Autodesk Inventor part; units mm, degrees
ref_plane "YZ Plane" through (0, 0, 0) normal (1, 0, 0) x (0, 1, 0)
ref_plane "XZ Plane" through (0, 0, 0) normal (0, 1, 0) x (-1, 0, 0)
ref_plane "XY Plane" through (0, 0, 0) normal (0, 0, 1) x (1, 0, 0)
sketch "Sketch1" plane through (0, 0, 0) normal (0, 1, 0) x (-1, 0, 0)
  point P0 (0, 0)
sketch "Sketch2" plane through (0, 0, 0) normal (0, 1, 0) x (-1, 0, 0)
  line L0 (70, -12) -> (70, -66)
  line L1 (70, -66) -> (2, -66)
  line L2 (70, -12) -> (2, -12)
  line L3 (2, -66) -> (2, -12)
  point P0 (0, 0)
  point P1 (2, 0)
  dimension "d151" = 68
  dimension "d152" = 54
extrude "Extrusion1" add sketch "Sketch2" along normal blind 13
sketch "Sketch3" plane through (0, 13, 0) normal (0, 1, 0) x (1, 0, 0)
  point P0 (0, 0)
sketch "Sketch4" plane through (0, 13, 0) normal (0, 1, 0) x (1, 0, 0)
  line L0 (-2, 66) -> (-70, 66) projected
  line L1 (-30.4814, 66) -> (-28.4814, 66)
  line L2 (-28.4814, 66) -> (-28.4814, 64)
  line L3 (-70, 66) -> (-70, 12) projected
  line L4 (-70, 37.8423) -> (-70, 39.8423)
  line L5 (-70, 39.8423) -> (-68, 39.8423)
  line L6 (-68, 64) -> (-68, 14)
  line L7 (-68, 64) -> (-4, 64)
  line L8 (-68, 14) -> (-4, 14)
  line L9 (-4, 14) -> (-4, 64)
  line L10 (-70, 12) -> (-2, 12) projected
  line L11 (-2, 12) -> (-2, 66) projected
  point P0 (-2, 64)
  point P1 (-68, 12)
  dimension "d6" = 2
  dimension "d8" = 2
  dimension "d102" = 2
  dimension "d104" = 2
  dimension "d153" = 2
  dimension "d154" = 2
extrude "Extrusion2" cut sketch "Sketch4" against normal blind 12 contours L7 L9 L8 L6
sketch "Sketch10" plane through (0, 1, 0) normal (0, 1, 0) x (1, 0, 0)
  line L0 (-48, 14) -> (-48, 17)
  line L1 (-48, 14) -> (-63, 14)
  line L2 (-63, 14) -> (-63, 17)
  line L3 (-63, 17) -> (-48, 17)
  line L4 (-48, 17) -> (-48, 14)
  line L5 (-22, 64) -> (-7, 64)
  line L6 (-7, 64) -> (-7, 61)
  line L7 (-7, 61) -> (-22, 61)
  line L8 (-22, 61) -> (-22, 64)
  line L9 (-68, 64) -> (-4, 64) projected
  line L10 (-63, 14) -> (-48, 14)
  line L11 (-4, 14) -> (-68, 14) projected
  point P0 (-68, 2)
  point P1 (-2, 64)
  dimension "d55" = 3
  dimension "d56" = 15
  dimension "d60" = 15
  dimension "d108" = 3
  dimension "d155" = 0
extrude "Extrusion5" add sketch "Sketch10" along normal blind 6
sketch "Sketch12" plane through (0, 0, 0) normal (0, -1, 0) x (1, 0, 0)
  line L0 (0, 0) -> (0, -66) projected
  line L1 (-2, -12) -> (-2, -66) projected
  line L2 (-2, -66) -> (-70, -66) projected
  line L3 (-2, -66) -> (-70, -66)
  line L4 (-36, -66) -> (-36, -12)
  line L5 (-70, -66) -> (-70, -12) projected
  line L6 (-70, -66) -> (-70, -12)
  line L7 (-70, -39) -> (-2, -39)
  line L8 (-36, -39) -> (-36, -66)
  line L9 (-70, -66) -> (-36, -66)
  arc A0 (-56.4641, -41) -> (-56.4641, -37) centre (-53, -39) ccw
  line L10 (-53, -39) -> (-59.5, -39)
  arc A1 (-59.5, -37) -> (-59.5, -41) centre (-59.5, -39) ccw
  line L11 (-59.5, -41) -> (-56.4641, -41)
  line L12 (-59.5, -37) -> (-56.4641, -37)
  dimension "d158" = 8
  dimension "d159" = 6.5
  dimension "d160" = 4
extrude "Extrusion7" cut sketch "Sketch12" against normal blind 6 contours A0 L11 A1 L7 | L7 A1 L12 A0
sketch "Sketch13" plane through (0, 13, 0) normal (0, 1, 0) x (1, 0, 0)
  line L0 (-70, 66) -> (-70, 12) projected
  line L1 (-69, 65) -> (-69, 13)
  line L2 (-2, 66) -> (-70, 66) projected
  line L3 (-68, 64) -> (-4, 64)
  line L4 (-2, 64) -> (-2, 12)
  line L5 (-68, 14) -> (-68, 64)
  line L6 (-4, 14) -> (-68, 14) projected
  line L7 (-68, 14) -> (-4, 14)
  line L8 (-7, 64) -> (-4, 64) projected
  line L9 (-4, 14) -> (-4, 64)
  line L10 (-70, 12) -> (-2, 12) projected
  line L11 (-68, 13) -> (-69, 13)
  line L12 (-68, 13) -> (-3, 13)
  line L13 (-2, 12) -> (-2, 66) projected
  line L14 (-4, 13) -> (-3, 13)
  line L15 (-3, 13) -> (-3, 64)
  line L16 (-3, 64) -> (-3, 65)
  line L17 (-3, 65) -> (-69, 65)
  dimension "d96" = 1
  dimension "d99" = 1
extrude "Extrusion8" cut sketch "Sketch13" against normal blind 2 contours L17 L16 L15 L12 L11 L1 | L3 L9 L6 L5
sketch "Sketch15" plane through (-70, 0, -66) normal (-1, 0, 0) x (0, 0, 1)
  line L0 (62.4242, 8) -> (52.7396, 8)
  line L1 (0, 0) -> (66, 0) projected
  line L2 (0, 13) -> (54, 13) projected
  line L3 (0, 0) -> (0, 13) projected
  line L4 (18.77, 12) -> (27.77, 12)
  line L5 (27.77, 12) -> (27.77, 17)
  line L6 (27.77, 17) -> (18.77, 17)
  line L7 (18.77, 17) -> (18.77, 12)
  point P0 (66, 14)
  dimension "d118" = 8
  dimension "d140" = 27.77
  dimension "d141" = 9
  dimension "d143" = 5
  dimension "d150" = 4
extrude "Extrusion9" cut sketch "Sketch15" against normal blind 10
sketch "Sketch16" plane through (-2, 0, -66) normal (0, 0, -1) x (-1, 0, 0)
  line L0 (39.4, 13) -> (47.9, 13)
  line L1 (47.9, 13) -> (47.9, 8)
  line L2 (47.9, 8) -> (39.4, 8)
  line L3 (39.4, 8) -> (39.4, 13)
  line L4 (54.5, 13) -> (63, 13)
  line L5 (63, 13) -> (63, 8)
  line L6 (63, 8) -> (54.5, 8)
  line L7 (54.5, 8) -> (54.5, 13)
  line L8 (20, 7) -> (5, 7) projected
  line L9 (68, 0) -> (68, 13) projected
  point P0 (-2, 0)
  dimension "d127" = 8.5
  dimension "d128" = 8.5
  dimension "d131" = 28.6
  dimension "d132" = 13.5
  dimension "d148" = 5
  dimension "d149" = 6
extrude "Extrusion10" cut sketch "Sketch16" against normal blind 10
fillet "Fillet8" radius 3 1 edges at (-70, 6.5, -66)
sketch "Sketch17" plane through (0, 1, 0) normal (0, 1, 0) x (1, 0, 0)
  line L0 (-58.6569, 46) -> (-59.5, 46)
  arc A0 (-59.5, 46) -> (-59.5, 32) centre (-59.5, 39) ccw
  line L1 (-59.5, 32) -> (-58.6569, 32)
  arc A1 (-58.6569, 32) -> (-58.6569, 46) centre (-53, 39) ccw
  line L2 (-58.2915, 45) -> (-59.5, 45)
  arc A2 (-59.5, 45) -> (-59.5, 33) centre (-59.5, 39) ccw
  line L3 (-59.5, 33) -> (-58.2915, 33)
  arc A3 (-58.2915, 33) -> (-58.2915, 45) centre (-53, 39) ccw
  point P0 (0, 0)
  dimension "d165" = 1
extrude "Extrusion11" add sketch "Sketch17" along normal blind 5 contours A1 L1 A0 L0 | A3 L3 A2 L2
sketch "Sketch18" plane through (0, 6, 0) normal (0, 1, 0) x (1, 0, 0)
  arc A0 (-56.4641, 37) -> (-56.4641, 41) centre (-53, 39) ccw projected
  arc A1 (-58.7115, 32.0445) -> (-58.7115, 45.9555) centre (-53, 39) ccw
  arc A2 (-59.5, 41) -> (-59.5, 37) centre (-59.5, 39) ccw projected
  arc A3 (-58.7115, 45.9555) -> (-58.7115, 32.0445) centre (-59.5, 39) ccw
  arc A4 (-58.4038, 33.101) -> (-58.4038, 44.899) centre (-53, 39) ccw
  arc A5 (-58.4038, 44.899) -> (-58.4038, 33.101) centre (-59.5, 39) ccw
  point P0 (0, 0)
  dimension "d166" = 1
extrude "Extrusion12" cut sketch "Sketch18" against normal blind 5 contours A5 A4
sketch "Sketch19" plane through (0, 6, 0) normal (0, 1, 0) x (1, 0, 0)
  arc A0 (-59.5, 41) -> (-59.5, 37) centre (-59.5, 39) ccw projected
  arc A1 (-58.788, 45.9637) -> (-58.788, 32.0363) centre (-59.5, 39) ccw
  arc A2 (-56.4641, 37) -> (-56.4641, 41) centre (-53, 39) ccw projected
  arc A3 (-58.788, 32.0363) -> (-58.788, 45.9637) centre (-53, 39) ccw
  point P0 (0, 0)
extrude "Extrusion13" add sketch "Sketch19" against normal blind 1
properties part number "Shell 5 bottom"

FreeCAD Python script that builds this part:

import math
import FreeCAD as App
import Part
import Sketcher


def edges_at(feature, points):
    """Names of the edges that pass closest to the given points."""
    edges = feature.Shape.Edges
    near = lambda p: min(range(len(edges)), key=lambda i: edges[i].distToShape(Part.Vertex(*p))[0])
    return sorted({f"Edge{near(p) + 1}" for p in points})


def add_polygon(sketch, points):
    """Adds a closed chain of lines whose ends are joined by coincident constraints."""
    first, n = sketch.GeometryCount, len(points)
    for a, b in zip(points, points[1:] + points[:1]):
        sketch.addGeometry(Part.LineSegment(App.Vector(*a, 0), App.Vector(*b, 0)), False)
    for i in range(n):
        sketch.addConstraint(Sketcher.Constraint("Coincident", first + i, 2, first + (i + 1) % n, 1))

doc = App.newDocument("Part")
body = doc.addObject("PartDesign::Body", "Body")

# Sketch on XZ plane
sketch1 = body.newObject("Sketcher::SketchObject", "Sketch")
sketch1.AttachmentSupport = (doc.getObject("XZ_Plane"), [""])
sketch1.MapMode = "FlatFace"
add_polygon(sketch1, [(-70, -66), (-70, -12), (-2, -12), (-2, -66)])  # lines 0-3
sketch1.addConstraint([
    Sketcher.Constraint("Vertical", 0),
    Sketcher.Constraint("Horizontal", 1),
    Sketcher.Constraint("Vertical", 2),
    Sketcher.Constraint("Horizontal", 3),
    Sketcher.Constraint("DistanceX", 1, 1, 1, 2, 68.0),
    Sketcher.Constraint("DistanceY", 0, 1, 0, 2, 54.0),
    Sketcher.Constraint("DistanceX", 0, 2, -1, 1, 70.0),
    Sketcher.Constraint("DistanceY", 0, 2, -1, 1, 12.0),
])
pad1 = body.newObject("PartDesign::Pad", "Pad")
pad1.Profile = sketch1
pad1.Length = 13
pad1.Reversed = True

# Sketch on XZ plane
sketch2 = body.newObject("Sketcher::SketchObject", "Sketch001")
sketch2.AttachmentSupport = (doc.getObject("XZ_Plane"), [""])
sketch2.MapMode = "FlatFace"
sketch2.AttachmentOffset = App.Placement(App.Vector(0, 0, -13), App.Rotation())
add_polygon(sketch2, [(-4, -64), (-68, -64), (-68, -14), (-4, -14)])  # lines 0-3
sketch2.addConstraint([
    Sketcher.Constraint("Horizontal", 0),
    Sketcher.Constraint("Vertical", 1),
    Sketcher.Constraint("Horizontal", 2),
    Sketcher.Constraint("Vertical", 3),
    Sketcher.Constraint("DistanceX", 0, 2, 0, 1, 64.0),
    Sketcher.Constraint("DistanceY", 1, 1, 1, 2, 50.0),
    Sketcher.Constraint("DistanceX", 0, 2, -1, 1, 68.0),
    Sketcher.Constraint("DistanceY", 0, 2, -1, 1, 64.0),
])
pocket1 = body.newObject("PartDesign::Pocket", "Pocket")
pocket1.Profile = sketch2
pocket1.Length = 12
pocket1.Reversed = True

# Sketch on XZ plane
sketch3 = body.newObject("Sketcher::SketchObject", "Sketch002")
sketch3.AttachmentSupport = (doc.getObject("XZ_Plane"), [""])
sketch3.MapMode = "FlatFace"
sketch3.AttachmentOffset = App.Placement(App.Vector(0, 0, -1), App.Rotation())
add_polygon(sketch3, [(-63, -14), (-48, -14), (-48, -17), (-63, -17)])  # lines 0-3
add_polygon(sketch3, [(-7, -64), (-22, -64), (-22, -61), (-7, -61)])  # lines 4-7
sketch3.addConstraint([
    Sketcher.Constraint("Horizontal", 0),
    Sketcher.Constraint("Vertical", 1),
    Sketcher.Constraint("Horizontal", 2),
    Sketcher.Constraint("Vertical", 3),
    Sketcher.Constraint("Horizontal", 4),
    Sketcher.Constraint("Vertical", 5),
    Sketcher.Constraint("Horizontal", 6),
    Sketcher.Constraint("Vertical", 7),
    Sketcher.Constraint("Equal", 2, 4),
    Sketcher.Constraint("Equal", 3, 5),
    Sketcher.Constraint("DistanceX", 0, 1, 0, 2, 15.0),
    Sketcher.Constraint("DistanceY", 1, 2, 1, 1, 3.0),
    Sketcher.Constraint("DistanceX", 0, 2, -1, 1, 48.0),
    Sketcher.Constraint("DistanceY", 0, 2, -1, 1, 14.0),
    Sketcher.Constraint("DistanceX", 4, 2, -1, 1, 22.0),
    Sketcher.Constraint("DistanceY", 4, 2, -1, 1, 64.0),
])
pad2 = body.newObject("PartDesign::Pad", "Pad001")
pad2.Profile = sketch3
pad2.Length = 6
pad2.Reversed = True

# Sketch on XZ plane
sketch4 = body.newObject("Sketcher::SketchObject", "Sketch003")
sketch4.AttachmentSupport = (doc.getObject("XZ_Plane"), [""])
sketch4.MapMode = "FlatFace"
sketch4.addGeometry([
    Part.ArcOfCircle(Part.Circle(App.Vector(-53, -39, 0), App.Vector(0, 0, 1), 3.999999), math.radians(-149.999988), math.radians(149.999988)),
    Part.LineSegment(App.Vector(-56.4641, -37, 0), App.Vector(-59.5, -37, 0)),
    Part.ArcOfCircle(Part.Circle(App.Vector(-59.5, -39, 0), App.Vector(0, 0, 1), 2), math.radians(90), math.radians(270)),
    Part.LineSegment(App.Vector(-59.5, -41, 0), App.Vector(-56.4641, -41, 0)),
], False)
sketch4.addConstraint([
    Sketcher.Constraint("Coincident", 0, 2, 1, 1),
    Sketcher.Constraint("Tangent", 1, 2, 2, 1),
    Sketcher.Constraint("Tangent", 2, 2, 3, 1),
    Sketcher.Constraint("Coincident", 3, 2, 0, 1),
    Sketcher.Constraint("Horizontal", 1),
    Sketcher.Constraint("Horizontal", 3),
    Sketcher.Constraint("Horizontal", 0, 3, 2, 3),
    Sketcher.Constraint("Radius", 0, 4.0),
    Sketcher.Constraint("Radius", 2, 2.0),
    Sketcher.Constraint("DistanceX", 2, 3, 0, 3, 6.5),
    Sketcher.Constraint("DistanceX", 0, 3, -1, 1, 53.0),
    Sketcher.Constraint("DistanceY", 0, 3, -1, 1, 39.0),
])
pocket2 = body.newObject("PartDesign::Pocket", "Pocket001")
pocket2.Profile = sketch4
pocket2.Length = 6

# Sketch on XZ plane
sketch5 = body.newObject("Sketcher::SketchObject", "Sketch004")
sketch5.AttachmentSupport = (doc.getObject("XZ_Plane"), [""])
sketch5.MapMode = "FlatFace"
sketch5.AttachmentOffset = App.Placement(App.Vector(0, 0, -13), App.Rotation())
add_polygon(sketch5, [(-3, -65), (-69, -65), (-69, -13), (-3, -13)])  # lines 0-3
sketch5.addConstraint([
    Sketcher.Constraint("Horizontal", 0),
    Sketcher.Constraint("Vertical", 1),
    Sketcher.Constraint("Horizontal", 2),
    Sketcher.Constraint("Vertical", 3),
    Sketcher.Constraint("DistanceX", 0, 2, 0, 1, 66.0),
    Sketcher.Constraint("DistanceY", 1, 1, 1, 2, 52.0),
    Sketcher.Constraint("DistanceX", 0, 2, -1, 1, 69.0),
    Sketcher.Constraint("DistanceY", 0, 2, -1, 1, 65.0),
])
pocket3 = body.newObject("PartDesign::Pocket", "Pocket002")
pocket3.Profile = sketch5
pocket3.Length = 2
pocket3.Reversed = True

# Sketch on YZ plane
sketch6 = body.newObject("Sketcher::SketchObject", "Sketch005")
sketch6.AttachmentSupport = (doc.getObject("YZ_Plane"), [""])
sketch6.MapMode = "FlatFace"
sketch6.AttachmentOffset = App.Placement(App.Vector(0, 0, -70), App.Rotation())
add_polygon(sketch6, [(17, -47.23), (12, -47.23), (12, -38.23), (17, -38.23)])  # lines 0-3
sketch6.addConstraint([
    Sketcher.Constraint("Horizontal", 0),
    Sketcher.Constraint("Vertical", 1),
    Sketcher.Constraint("Horizontal", 2),
    Sketcher.Constraint("Vertical", 3),
    Sketcher.Constraint("DistanceX", 0, 2, 0, 1, 5.0),
    Sketcher.Constraint("DistanceY", 1, 1, 1, 2, 9.0),
    Sketcher.Constraint("DistanceX", -1, 1, 0, 2, 12.0),
    Sketcher.Constraint("DistanceY", 0, 2, -1, 1, 47.23),
])
pocket4 = body.newObject("PartDesign::Pocket", "Pocket003")
pocket4.Profile = sketch6
pocket4.Length = 10
pocket4.Reversed = True

# Sketch on XY plane
sketch7 = body.newObject("Sketcher::SketchObject", "Sketch006")
sketch7.AttachmentSupport = (doc.getObject("XY_Plane"), [""])
sketch7.MapMode = "FlatFace"
sketch7.AttachmentOffset = App.Placement(App.Vector(0, 0, -66), App.Rotation())
add_polygon(sketch7, [(-49.9, 13), (-41.4, 13), (-41.4, 8), (-49.9, 8)])  # lines 0-3
add_polygon(sketch7, [(-65, 13), (-56.5, 13), (-56.5, 8), (-65, 8)])  # lines 4-7
sketch7.addConstraint([
    Sketcher.Constraint("Horizontal", 0),
    Sketcher.Constraint("Vertical", 1),
    Sketcher.Constraint("Horizontal", 2),
    Sketcher.Constraint("Vertical", 3),
    Sketcher.Constraint("Horizontal", 4),
    Sketcher.Constraint("Vertical", 5),
    Sketcher.Constraint("Horizontal", 6),
    Sketcher.Constraint("Vertical", 7),
    Sketcher.Constraint("Horizontal", 3, 2, 4, 2),
    Sketcher.Constraint("Horizontal", 2, 2, 5, 2),
    Sketcher.Constraint("Equal", 2, 4),
    Sketcher.Constraint("DistanceY", 1, 2, 1, 1, 5.0),
    Sketcher.Constraint("DistanceX", 0, 1, 0, 2, 8.5),
    Sketcher.Constraint("DistanceY", -1, 1, 0, 2, 13.0),
    Sketcher.Constraint("DistanceX", 6, 2, -1, 1, 65.0),
    Sketcher.Constraint("DistanceX", 0, 2, -1, 1, 41.4),
])
pocket5 = body.newObject("PartDesign::Pocket", "Pocket004")
pocket5.Profile = sketch7
pocket5.Length = 10
pocket5.Reversed = True
doc.recompute()

fillet = body.newObject("PartDesign::Fillet", "Fillet")
fillet.Base = (pocket5, edges_at(pocket5, [(-70, 6.5, -66)]))
fillet.Radius = 3

# Sketch on XZ plane
sketch8 = body.newObject("Sketcher::SketchObject", "Sketch007")
sketch8.AttachmentSupport = (doc.getObject("XZ_Plane"), [""])
sketch8.MapMode = "FlatFace"
sketch8.AttachmentOffset = App.Placement(App.Vector(0, 0, -1), App.Rotation())
sketch8.addGeometry([
    Part.ArcOfCircle(Part.Circle(App.Vector(-53, -39, 0), App.Vector(0, 0, 1), 9.000029), math.radians(-128.942668), math.radians(128.942668)),
    Part.LineSegment(App.Vector(-58.6569, -46, 0), App.Vector(-59.5, -46, 0)),
    Part.ArcOfCircle(Part.Circle(App.Vector(-59.5, -39, 0), App.Vector(0, 0, 1), 7), math.radians(90), math.radians(270)),
    Part.LineSegment(App.Vector(-59.5, -32, 0), App.Vector(-58.6569, -32, 0)),
], False)
sketch8.addConstraint([
    Sketcher.Constraint("Coincident", 0, 1, 1, 1),
    Sketcher.Constraint("Tangent", 1, 2, 2, 2),
    Sketcher.Constraint("Tangent", 2, 1, 3, 1),
    Sketcher.Constraint("Coincident", 3, 2, 0, 2),
    Sketcher.Constraint("Horizontal", 1),
    Sketcher.Constraint("Horizontal", 3),
    Sketcher.Constraint("Horizontal", 0, 3, 2, 3),
    Sketcher.Constraint("Radius", 0, 9.0),
    Sketcher.Constraint("Radius", 2, 7.0),
    Sketcher.Constraint("DistanceX", 0, 3, -1, 1, 53.0),
    Sketcher.Constraint("DistanceY", 0, 3, -1, 1, 39.0),
    Sketcher.Constraint("DistanceX", 2, 3, -1, 1, 59.5),
])
pad3 = body.newObject("PartDesign::Pad", "Pad002")
pad3.Profile = sketch8
pad3.Length = 5
pad3.Reversed = True

# Sketch on XZ plane
sketch9 = body.newObject("Sketcher::SketchObject", "Sketch008")
sketch9.AttachmentSupport = (doc.getObject("XZ_Plane"), [""])
sketch9.MapMode = "FlatFace"
sketch9.AttachmentOffset = App.Placement(App.Vector(0, 0, -6), App.Rotation())
sketch9.addGeometry([
    Part.ArcOfCircle(Part.Circle(App.Vector(-59.5, -39, 0), App.Vector(0, 0, 1), 5.999988), math.radians(79.472912), math.radians(280.527088)),
    Part.ArcOfCircle(Part.Circle(App.Vector(-53, -39, 0), App.Vector(0, 0, 1), 7.999953), math.radians(-132.491353), math.radians(132.491353)),
], False)
sketch9.addConstraint([
    Sketcher.Constraint("Coincident", 0, 1, 1, 2),
    Sketcher.Constraint("Coincident", 1, 1, 0, 2),
    Sketcher.Constraint("Horizontal", 0, 3, 1, 3),
    Sketcher.Constraint("Radius", 0, 6.0),
    Sketcher.Constraint("Radius", 1, 8.0),
    Sketcher.Constraint("DistanceY", 0, 3, -1, 1, 39.0),
    Sketcher.Constraint("DistanceX", 1, 3, -1, 1, 53.0),
    Sketcher.Constraint("DistanceX", 0, 3, -1, 1, 59.5),
])
pocket6 = body.newObject("PartDesign::Pocket", "Pocket005")
pocket6.Profile = sketch9
pocket6.Length = 5
pocket6.Reversed = True

# Sketch on XZ plane
sketch10 = body.newObject("Sketcher::SketchObject", "Sketch009")
sketch10.AttachmentSupport = (doc.getObject("XZ_Plane"), [""])
sketch10.MapMode = "FlatFace"
sketch10.AttachmentOffset = App.Placement(App.Vector(0, 0, -6), App.Rotation())
sketch10.addGeometry([
    Part.ArcOfCircle(Part.Circle(App.Vector(-53, -39, 0), App.Vector(0, 0, 1), 9.055057), math.radians(-129.732252), math.radians(129.732252)),
    Part.ArcOfCircle(Part.Circle(App.Vector(-59.5, -39, 0), App.Vector(0, 0, 1), 7.000004), math.radians(84.162108), math.radians(275.837892)),
], False)
sketch10.addConstraint([
    Sketcher.Constraint("Coincident", 0, 1, 1, 2),
    Sketcher.Constraint("Coincident", 1, 1, 0, 2),
    Sketcher.Constraint("Horizontal", 0, 3, 1, 3),
    Sketcher.Constraint("Radius", 1, 7.0),
    Sketcher.Constraint("DistanceX", 0, 3, -1, 1, 53.0),
    Sketcher.Constraint("DistanceY", 0, 3, -1, 1, 39.0),
    Sketcher.Constraint("Radius", 0, 9.055),
    Sketcher.Constraint("DistanceX", 1, 3, -1, 1, 59.5),
])
pad4 = body.newObject("PartDesign::Pad", "Pad003")
pad4.Profile = sketch10
pad4.Length = 1

doc.recompute()
